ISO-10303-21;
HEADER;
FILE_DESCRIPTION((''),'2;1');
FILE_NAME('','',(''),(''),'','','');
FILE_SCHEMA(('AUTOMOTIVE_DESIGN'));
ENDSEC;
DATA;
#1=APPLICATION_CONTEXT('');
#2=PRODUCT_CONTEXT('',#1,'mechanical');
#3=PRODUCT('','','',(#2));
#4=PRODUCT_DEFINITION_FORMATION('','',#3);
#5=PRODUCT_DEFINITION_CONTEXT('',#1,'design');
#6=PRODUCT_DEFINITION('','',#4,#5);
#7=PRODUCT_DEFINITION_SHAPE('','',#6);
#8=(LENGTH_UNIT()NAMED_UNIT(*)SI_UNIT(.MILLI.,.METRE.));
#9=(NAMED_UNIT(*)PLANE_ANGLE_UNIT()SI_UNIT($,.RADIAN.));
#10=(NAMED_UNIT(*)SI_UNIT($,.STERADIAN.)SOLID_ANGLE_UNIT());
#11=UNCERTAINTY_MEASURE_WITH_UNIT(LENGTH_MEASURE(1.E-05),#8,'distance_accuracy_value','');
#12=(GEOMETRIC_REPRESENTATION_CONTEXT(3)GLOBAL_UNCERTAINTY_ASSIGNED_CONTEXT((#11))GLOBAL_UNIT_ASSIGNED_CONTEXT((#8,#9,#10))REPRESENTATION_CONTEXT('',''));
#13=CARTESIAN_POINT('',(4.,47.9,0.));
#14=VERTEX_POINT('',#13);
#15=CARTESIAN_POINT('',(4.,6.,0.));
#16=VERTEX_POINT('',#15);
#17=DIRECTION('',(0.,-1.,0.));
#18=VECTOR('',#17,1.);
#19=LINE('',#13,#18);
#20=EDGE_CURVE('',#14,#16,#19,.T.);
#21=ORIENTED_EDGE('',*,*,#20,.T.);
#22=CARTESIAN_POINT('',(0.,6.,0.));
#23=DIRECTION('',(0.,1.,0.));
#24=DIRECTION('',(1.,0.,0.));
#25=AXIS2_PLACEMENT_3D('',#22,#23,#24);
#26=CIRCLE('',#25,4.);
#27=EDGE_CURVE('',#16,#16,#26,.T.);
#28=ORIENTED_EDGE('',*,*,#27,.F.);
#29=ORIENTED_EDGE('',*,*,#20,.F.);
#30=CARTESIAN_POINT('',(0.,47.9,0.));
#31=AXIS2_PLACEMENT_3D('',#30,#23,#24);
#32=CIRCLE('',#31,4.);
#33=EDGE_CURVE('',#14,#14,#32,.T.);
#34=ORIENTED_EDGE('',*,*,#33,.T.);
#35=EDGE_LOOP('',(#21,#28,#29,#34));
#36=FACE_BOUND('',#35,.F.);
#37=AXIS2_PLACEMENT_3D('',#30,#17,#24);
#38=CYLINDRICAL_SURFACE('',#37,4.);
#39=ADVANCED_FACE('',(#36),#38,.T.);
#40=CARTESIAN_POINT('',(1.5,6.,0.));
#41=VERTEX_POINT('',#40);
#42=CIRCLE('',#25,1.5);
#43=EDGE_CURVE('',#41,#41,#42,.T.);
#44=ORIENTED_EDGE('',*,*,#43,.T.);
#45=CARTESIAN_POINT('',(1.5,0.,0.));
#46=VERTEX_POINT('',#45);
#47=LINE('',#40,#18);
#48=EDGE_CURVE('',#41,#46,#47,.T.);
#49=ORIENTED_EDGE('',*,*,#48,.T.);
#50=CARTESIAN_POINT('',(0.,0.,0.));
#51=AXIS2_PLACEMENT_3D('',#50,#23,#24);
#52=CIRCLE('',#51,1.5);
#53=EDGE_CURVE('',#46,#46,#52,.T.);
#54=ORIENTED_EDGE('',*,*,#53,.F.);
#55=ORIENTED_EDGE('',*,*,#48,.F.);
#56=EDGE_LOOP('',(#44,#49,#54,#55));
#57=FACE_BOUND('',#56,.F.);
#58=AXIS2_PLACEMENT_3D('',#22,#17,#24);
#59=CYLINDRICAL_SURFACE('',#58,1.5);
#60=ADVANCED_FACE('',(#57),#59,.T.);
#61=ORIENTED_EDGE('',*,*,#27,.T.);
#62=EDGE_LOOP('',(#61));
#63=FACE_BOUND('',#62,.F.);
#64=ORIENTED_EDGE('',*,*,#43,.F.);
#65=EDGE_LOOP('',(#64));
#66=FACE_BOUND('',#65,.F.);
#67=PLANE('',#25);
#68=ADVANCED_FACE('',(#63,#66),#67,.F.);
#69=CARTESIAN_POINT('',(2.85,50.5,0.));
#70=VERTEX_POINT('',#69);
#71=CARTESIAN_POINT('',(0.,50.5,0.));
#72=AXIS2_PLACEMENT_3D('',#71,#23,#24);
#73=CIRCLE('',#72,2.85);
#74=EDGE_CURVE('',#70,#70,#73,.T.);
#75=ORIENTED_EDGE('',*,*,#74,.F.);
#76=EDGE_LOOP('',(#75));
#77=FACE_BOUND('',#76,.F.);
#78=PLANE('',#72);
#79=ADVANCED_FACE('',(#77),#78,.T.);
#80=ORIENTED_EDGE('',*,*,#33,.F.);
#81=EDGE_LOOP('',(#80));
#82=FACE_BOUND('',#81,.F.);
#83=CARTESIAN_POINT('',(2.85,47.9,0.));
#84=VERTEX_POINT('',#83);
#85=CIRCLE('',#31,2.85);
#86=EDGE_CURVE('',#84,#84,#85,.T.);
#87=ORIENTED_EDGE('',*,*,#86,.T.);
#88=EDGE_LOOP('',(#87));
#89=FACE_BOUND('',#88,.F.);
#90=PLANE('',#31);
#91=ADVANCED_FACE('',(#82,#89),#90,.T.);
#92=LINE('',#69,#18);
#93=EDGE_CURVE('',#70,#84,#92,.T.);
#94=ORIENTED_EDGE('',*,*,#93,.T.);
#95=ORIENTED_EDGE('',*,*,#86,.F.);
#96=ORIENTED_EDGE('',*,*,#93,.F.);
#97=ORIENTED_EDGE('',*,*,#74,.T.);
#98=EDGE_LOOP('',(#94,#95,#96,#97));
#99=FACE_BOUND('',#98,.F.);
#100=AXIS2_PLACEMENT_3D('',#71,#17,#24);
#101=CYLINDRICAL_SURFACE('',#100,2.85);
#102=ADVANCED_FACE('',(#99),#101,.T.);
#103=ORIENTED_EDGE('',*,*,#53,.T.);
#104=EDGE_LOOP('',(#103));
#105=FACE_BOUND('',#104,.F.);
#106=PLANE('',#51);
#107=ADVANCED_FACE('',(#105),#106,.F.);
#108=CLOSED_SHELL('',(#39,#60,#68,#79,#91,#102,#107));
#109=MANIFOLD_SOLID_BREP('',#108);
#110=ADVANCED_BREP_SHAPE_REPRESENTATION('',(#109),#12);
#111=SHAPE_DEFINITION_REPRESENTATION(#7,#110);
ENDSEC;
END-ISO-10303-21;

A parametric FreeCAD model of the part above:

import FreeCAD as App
import Part
import Sketcher

V = App.Vector

doc = App.newDocument("Part")
body = doc.addObject("PartDesign::Body", "Body")

# Sketch on XY plane
sketch1 = doc.addObject("Sketcher::SketchObject", "Sketch")
body.addObject(sketch1)
sketch1.AttachmentSupport = (doc.XY_Plane, [""])
sketch1.MapMode = "FlatFace"
sketch1.addGeometry(Part.LineSegment(V(0, 50.5, 0), V(0, 0, 0)), False)
sketch1.addGeometry(Part.LineSegment(V(0, 0, 0), V(1.5, 0, 0)), False)
sketch1.addGeometry(Part.LineSegment(V(1.5, 0, 0), V(1.5, 6, 0)), False)
sketch1.addGeometry(Part.LineSegment(V(1.5, 6, 0), V(4, 6, 0)), False)
sketch1.addGeometry(Part.LineSegment(V(4, 6, 0), V(4, 47.9, 0)), False)
sketch1.addGeometry(Part.LineSegment(V(4, 47.9, 0), V(2.9, 47.9, 0)), False)
sketch1.addGeometry(Part.LineSegment(V(2.9, 47.9, 0), V(2.9, 50.5, 0)), False)
sketch1.addGeometry(Part.LineSegment(V(2.9, 50.5, 0), V(0, 50.5, 0)), False)
sketch1.addConstraint(Sketcher.Constraint("Coincident", 0, 2, 1, 1))
sketch1.addConstraint(Sketcher.Constraint("Coincident", 1, 2, 2, 1))
sketch1.addConstraint(Sketcher.Constraint("Coincident", 2, 2, 3, 1))
sketch1.addConstraint(Sketcher.Constraint("Coincident", 3, 2, 4, 1))
sketch1.addConstraint(Sketcher.Constraint("Coincident", 4, 2, 5, 1))
sketch1.addConstraint(Sketcher.Constraint("Coincident", 5, 2, 6, 1))
sketch1.addConstraint(Sketcher.Constraint("Coincident", 6, 2, 7, 1))
sketch1.addConstraint(Sketcher.Constraint("Coincident", 7, 2, 0, 1))
sketch1.addConstraint(Sketcher.Constraint("Vertical", 0))
sketch1.addConstraint(Sketcher.Constraint("Horizontal", 1))
sketch1.addConstraint(Sketcher.Constraint("Vertical", 2))
sketch1.addConstraint(Sketcher.Constraint("Horizontal", 3))
sketch1.addConstraint(Sketcher.Constraint("Vertical", 4))
sketch1.addConstraint(Sketcher.Constraint("Horizontal", 5))
sketch1.addConstraint(Sketcher.Constraint("Vertical", 6))
sketch1.addConstraint(Sketcher.Constraint("Horizontal", 7))
sketch1.addConstraint(Sketcher.Constraint("Coincident", 0, 2, -1, 1))
sketch1.addConstraint(Sketcher.Constraint("DistanceY", 2, 1, 2, 2, 6.0))
sketch1.addConstraint(Sketcher.Constraint("DistanceY", 0, 2, 0, 1, 50.5))
sketch1.addConstraint(Sketcher.Constraint("DistanceY", 6, 1, 6, 2, 2.6))
sketch1.addConstraint(Sketcher.Constraint("DistanceX", 1, 1, 1, 2, 1.5))
sketch1.addConstraint(Sketcher.Constraint("DistanceX", 3, 1, 3, 2, 2.5))
sketch1.addConstraint(Sketcher.Constraint("DistanceX", 5, 2, 5, 1, 1.15))
revolution = doc.addObject("PartDesign::Revolution", "Revolution")
body.addObject(revolution)
revolution.Profile = sketch1
revolution.ReferenceAxis = (sketch1, ["V_Axis"])
revolution.Angle = 360

doc.recompute()
